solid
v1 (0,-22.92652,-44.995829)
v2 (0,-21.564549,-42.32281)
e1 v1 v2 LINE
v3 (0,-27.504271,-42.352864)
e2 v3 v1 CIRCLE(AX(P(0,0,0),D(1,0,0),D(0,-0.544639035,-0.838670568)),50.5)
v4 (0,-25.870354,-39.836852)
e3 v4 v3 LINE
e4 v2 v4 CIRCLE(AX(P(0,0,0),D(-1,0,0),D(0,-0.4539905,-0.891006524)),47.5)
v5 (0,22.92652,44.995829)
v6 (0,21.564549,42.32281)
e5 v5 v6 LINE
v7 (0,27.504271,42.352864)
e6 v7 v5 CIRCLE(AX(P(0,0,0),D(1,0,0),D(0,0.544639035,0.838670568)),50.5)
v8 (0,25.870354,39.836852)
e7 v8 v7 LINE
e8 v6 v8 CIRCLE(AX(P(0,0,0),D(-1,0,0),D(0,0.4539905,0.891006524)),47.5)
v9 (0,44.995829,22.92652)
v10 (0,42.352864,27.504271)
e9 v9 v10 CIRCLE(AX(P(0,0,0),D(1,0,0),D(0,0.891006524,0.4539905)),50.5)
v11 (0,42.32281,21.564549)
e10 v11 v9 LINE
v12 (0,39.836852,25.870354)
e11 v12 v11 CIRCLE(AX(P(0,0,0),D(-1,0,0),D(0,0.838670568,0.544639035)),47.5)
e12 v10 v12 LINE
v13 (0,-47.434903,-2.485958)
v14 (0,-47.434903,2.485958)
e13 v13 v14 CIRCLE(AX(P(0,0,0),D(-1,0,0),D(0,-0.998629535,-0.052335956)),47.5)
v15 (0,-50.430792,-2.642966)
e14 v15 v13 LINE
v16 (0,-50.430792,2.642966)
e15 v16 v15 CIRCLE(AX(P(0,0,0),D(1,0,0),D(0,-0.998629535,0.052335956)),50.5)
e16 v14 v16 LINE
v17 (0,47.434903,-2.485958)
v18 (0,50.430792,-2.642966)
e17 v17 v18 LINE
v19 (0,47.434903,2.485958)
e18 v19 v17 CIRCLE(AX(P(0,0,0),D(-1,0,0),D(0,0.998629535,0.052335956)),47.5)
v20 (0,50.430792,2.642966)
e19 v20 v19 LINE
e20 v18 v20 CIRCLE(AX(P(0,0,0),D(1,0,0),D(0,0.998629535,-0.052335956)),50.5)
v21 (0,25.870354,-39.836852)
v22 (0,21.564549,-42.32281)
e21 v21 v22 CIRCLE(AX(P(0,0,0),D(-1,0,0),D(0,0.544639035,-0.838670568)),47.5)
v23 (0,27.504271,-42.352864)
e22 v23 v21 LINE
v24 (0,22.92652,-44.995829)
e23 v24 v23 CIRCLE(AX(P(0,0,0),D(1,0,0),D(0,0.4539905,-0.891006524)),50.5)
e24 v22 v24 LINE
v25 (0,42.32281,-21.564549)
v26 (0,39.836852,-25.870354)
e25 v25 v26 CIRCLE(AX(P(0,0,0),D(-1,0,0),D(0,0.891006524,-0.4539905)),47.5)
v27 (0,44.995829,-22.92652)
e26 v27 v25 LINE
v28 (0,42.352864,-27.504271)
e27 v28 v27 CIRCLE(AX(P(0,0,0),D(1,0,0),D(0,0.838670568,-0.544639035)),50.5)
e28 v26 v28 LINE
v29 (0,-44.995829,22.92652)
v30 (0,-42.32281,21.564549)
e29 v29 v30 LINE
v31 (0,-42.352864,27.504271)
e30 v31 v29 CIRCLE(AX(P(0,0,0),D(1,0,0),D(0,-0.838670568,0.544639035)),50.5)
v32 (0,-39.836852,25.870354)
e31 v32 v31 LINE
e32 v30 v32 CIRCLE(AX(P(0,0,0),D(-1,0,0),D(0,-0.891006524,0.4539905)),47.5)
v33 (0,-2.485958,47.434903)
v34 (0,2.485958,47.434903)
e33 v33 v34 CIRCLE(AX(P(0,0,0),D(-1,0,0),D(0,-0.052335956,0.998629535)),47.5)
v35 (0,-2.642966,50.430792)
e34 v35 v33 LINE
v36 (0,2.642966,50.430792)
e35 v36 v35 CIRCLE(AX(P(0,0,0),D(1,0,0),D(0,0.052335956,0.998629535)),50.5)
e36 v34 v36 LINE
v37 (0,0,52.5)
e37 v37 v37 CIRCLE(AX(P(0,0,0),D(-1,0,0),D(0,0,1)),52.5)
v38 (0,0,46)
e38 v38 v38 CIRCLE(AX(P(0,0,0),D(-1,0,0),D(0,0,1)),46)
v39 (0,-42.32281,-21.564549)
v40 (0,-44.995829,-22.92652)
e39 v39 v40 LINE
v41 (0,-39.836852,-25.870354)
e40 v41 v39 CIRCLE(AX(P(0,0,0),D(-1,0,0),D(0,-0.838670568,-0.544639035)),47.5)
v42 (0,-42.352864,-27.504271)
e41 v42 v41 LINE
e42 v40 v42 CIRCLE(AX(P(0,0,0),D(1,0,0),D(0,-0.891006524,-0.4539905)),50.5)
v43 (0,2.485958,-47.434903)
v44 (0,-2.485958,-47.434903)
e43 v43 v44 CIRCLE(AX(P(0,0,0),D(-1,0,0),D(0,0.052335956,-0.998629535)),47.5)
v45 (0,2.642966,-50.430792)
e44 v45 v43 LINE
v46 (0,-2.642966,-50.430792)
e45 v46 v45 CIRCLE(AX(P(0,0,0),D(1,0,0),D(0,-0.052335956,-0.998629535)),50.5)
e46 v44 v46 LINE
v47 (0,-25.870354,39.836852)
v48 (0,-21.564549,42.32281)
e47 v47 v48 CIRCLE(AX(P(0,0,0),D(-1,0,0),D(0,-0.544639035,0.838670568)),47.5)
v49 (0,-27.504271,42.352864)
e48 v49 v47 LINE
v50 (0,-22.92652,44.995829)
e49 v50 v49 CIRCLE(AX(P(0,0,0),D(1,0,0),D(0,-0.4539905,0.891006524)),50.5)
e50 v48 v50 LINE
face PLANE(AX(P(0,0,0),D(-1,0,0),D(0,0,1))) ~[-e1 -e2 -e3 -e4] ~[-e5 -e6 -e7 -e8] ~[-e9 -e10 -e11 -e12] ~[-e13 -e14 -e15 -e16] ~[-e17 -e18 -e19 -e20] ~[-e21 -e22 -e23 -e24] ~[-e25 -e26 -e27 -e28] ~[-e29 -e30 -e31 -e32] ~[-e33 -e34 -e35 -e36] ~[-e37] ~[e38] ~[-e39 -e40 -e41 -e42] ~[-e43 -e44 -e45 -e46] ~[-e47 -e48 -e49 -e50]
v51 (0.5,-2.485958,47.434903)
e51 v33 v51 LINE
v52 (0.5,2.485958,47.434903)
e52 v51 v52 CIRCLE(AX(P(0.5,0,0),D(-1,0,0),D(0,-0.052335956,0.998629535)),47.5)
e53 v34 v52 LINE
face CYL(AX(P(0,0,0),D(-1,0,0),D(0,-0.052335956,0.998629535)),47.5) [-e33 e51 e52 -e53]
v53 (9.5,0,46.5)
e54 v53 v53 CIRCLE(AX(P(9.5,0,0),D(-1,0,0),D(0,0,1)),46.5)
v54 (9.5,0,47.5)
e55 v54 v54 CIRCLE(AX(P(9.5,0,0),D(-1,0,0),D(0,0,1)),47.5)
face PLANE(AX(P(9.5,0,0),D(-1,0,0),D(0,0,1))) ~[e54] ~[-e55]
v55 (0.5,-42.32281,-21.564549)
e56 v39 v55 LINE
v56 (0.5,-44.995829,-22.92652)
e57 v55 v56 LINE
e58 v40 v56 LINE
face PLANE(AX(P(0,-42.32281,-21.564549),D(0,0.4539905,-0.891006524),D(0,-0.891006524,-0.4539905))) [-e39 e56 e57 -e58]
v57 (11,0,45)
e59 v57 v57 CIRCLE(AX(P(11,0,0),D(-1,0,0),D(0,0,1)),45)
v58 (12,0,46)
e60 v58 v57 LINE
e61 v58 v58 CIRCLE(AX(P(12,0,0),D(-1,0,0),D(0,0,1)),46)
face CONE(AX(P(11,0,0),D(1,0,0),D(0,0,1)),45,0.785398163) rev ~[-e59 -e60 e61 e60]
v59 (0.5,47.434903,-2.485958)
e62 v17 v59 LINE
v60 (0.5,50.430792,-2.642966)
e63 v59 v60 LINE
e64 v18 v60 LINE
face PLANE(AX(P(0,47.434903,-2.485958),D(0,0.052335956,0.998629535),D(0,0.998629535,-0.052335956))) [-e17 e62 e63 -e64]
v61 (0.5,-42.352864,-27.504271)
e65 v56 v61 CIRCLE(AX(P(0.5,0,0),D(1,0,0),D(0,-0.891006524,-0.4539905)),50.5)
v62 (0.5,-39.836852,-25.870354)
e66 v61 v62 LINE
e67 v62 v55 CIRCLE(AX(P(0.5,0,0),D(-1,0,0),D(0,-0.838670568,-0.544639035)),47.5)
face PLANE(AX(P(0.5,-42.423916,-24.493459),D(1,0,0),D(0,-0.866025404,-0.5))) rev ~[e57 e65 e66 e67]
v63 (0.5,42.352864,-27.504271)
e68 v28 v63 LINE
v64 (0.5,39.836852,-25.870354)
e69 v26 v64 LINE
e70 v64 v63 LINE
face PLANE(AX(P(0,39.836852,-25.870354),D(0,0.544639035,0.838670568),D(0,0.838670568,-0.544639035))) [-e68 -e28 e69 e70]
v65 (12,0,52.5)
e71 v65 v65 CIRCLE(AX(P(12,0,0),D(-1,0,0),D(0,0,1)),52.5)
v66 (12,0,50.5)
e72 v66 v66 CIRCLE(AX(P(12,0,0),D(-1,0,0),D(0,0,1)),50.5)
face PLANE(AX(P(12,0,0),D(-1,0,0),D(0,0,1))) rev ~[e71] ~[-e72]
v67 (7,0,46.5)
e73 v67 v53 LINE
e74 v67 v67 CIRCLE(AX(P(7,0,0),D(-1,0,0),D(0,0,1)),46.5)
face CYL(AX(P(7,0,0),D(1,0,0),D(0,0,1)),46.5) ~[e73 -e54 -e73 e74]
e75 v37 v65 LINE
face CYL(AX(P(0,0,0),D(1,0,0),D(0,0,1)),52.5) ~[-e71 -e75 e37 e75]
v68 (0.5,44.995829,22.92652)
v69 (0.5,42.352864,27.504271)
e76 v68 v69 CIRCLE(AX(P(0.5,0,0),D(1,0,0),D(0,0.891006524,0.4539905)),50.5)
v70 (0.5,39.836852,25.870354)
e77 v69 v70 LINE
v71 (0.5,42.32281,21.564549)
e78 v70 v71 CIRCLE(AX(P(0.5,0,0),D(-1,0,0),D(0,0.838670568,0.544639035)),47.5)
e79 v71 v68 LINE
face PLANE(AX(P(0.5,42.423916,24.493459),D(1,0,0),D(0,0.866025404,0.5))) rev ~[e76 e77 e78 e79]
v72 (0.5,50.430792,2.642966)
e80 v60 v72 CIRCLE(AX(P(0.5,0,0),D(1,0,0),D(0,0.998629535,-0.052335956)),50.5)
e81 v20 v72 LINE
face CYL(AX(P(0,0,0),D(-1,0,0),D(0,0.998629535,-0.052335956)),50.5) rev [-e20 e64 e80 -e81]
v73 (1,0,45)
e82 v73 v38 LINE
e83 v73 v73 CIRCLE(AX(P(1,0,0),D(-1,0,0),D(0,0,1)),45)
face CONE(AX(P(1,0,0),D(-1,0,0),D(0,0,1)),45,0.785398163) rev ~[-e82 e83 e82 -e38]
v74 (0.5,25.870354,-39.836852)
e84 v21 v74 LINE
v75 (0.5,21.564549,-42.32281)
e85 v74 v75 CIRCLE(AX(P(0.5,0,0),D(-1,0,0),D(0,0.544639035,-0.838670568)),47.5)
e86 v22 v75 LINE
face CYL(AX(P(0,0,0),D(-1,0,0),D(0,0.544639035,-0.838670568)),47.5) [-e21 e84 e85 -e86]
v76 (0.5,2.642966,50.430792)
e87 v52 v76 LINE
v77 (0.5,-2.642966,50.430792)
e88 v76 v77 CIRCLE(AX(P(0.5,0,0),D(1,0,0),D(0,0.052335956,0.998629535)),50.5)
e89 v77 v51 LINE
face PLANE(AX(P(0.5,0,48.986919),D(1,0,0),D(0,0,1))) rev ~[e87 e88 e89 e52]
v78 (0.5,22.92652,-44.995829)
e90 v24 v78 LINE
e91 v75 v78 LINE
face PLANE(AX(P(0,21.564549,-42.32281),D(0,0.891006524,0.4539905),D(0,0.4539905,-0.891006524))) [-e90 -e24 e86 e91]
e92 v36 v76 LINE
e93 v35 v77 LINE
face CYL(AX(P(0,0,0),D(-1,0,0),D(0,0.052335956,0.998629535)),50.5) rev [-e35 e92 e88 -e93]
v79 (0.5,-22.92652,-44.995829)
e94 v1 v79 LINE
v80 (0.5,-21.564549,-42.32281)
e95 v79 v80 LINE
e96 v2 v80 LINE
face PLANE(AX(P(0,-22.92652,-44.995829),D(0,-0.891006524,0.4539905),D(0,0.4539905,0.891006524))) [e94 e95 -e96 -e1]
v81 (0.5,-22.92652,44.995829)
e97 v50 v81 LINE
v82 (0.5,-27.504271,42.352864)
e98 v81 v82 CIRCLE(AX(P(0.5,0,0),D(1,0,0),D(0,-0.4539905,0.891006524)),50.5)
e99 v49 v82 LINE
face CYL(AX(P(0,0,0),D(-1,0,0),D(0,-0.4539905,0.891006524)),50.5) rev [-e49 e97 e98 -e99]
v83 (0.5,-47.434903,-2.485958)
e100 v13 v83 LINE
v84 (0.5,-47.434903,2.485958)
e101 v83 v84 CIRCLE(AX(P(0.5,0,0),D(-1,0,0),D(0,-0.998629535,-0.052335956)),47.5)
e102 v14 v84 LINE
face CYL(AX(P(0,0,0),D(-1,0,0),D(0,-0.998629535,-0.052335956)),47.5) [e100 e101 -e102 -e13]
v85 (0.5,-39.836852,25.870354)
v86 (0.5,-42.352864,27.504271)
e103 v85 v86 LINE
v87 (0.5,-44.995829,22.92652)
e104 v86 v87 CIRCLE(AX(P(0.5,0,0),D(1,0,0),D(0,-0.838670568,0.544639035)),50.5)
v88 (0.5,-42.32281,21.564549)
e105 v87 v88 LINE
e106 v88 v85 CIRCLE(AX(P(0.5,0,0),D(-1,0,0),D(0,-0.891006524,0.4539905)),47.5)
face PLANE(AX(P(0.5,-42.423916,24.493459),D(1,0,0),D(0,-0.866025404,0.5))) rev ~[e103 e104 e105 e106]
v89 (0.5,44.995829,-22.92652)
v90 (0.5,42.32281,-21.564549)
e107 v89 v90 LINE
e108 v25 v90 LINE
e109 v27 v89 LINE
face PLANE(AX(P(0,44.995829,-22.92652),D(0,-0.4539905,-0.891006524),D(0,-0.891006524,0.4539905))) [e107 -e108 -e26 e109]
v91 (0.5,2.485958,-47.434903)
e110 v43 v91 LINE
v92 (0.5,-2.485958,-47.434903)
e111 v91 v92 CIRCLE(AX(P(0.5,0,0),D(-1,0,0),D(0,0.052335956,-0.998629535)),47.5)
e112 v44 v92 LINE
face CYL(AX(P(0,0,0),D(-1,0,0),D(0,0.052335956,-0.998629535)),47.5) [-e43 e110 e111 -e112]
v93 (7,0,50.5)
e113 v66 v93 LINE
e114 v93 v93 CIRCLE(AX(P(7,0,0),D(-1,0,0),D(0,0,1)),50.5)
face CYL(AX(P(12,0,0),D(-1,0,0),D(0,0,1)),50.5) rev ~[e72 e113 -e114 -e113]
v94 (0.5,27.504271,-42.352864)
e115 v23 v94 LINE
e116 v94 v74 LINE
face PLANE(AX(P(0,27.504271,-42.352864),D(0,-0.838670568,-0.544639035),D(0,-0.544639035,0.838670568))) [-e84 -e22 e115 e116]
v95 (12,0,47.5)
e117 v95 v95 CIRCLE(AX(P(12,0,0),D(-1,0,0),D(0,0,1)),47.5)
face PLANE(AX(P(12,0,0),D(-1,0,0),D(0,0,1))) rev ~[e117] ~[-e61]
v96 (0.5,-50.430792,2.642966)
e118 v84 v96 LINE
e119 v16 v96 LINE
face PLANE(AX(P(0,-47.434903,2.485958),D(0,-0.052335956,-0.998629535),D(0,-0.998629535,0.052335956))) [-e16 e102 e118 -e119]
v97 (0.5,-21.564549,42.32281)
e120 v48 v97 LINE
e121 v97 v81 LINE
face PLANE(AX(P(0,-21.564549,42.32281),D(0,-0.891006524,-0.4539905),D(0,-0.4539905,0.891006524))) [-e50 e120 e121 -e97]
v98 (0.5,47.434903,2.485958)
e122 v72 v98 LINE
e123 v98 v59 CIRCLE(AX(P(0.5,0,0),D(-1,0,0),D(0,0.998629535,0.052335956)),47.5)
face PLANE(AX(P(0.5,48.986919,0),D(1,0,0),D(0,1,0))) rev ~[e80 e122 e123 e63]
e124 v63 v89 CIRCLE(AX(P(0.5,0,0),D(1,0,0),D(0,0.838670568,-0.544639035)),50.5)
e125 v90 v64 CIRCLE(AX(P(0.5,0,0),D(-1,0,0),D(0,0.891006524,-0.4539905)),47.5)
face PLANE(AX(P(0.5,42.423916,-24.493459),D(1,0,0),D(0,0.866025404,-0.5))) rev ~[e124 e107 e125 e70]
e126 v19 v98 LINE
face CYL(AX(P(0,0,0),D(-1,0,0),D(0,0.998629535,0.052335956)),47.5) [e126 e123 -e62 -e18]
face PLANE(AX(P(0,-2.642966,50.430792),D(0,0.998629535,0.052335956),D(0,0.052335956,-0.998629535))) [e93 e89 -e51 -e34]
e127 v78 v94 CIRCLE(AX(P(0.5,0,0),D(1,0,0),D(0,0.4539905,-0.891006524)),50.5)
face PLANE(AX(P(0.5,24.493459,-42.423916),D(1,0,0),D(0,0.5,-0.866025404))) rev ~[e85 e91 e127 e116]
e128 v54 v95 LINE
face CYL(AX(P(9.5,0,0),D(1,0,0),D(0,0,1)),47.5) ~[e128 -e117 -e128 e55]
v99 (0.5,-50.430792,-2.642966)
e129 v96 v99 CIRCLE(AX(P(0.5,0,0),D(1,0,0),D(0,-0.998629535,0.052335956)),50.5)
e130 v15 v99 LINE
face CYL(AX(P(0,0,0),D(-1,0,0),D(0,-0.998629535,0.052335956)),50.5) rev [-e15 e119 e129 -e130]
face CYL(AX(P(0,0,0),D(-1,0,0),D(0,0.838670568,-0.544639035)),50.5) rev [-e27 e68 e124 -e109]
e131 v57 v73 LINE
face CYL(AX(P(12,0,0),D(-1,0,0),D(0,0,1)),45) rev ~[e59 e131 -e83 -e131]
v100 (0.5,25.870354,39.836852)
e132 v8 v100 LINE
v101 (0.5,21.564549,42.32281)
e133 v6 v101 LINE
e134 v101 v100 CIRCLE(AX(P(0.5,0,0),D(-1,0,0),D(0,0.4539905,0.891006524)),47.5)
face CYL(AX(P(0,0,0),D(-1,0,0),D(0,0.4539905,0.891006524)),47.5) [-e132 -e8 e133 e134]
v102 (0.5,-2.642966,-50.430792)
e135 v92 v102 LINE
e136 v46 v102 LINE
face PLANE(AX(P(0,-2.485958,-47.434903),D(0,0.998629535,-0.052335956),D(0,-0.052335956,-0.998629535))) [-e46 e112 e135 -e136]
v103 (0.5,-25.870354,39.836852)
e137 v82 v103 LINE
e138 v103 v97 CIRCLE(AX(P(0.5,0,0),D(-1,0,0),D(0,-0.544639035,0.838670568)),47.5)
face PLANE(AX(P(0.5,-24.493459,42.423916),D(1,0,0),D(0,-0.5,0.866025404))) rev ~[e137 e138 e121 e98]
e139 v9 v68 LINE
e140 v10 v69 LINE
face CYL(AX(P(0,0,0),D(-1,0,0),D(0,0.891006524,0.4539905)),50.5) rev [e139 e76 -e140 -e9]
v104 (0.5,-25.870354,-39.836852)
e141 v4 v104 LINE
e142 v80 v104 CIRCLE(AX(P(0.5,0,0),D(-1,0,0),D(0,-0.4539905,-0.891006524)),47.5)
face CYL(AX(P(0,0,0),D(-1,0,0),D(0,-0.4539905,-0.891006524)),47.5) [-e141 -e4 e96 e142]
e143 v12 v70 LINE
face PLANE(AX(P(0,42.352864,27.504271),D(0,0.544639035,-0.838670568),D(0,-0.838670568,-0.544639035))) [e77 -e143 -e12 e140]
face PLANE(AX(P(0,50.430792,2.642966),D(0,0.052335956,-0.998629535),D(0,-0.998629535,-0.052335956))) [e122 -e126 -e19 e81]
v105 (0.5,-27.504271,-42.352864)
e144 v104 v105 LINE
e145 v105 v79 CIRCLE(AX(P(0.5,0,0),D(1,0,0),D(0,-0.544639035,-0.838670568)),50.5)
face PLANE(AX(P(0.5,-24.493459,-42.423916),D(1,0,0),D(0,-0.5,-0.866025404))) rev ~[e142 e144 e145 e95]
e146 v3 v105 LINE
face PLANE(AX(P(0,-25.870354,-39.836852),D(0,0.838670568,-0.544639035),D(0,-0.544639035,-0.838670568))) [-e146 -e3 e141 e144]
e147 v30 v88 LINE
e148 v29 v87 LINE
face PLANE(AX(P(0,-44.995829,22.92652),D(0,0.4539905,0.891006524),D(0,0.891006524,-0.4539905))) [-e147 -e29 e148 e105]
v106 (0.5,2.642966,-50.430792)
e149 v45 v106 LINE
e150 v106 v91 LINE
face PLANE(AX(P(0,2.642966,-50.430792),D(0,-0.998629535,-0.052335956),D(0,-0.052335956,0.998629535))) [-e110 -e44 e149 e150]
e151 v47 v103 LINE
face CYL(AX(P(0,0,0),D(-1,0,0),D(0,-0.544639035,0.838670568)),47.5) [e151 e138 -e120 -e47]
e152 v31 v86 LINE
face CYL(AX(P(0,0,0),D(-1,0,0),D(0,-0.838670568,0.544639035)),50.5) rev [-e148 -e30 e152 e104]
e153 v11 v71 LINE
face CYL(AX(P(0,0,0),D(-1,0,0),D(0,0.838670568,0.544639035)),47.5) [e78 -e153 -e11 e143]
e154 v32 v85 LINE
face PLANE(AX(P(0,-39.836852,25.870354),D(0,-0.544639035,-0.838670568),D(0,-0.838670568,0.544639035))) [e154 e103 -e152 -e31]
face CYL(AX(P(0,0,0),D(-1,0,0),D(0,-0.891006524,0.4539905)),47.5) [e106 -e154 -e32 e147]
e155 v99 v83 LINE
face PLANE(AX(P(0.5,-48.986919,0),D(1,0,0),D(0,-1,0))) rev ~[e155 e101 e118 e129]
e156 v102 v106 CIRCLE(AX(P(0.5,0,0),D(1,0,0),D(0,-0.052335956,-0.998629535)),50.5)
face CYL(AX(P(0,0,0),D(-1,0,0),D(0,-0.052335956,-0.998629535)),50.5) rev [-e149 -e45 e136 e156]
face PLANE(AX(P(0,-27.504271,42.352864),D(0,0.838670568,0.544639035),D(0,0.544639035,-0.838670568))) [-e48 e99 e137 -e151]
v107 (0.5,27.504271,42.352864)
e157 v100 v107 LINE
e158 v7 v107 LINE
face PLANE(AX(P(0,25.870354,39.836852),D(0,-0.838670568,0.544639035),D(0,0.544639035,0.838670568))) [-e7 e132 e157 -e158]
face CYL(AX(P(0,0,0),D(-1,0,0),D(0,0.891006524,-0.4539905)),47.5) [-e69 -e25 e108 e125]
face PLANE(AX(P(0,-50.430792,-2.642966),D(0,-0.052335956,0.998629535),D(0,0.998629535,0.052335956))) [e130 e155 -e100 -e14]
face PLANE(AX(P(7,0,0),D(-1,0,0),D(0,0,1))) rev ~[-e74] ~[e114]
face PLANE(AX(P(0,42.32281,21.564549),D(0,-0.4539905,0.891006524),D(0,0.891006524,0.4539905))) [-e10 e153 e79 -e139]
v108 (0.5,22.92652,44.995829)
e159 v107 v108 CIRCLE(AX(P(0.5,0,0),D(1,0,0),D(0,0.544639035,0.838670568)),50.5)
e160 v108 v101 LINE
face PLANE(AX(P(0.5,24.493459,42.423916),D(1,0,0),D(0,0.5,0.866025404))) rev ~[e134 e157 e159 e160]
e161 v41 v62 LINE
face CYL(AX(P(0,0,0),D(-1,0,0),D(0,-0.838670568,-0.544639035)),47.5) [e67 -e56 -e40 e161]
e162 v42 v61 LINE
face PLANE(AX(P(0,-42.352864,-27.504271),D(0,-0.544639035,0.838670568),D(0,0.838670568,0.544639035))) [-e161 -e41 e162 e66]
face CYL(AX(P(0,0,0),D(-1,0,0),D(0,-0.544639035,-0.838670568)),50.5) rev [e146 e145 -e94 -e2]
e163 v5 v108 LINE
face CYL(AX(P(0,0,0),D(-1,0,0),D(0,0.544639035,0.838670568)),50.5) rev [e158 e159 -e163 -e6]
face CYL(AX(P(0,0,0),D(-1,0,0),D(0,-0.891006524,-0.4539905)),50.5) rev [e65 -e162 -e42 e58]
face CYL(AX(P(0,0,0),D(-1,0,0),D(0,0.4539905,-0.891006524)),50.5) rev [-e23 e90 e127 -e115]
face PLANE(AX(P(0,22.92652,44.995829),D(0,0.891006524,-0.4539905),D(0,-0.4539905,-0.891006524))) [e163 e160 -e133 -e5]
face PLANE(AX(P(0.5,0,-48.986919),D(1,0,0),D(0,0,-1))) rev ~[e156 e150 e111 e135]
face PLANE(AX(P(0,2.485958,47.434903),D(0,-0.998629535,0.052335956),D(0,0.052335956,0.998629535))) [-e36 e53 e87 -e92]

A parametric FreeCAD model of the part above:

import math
import FreeCAD as App
import Part
import Sketcher
Q = App.Units.Quantity


def edges_at(feature, points):
    """Names of the edges that pass closest to the given points."""
    edges = feature.Shape.Edges
    near = lambda p: min(range(len(edges)), key=lambda i: edges[i].distToShape(Part.Vertex(*p))[0])
    return sorted({f"Edge{near(p) + 1}" for p in points})


def add_polygon(sketch, points):
    """Adds a closed chain of lines whose ends are joined by coincident constraints."""
    first, n = sketch.GeometryCount, len(points)
    for a, b in zip(points, points[1:] + points[:1]):
        sketch.addGeometry(Part.LineSegment(App.Vector(*a, 0), App.Vector(*b, 0)), False)
    for i in range(n):
        sketch.addConstraint(Sketcher.Constraint("Coincident", first + i, 2, first + (i + 1) % n, 1))

doc = App.newDocument("Part")
params = doc.addObject("Spreadsheet::Sheet", "Params")
for row, (alias, value) in enumerate([
    ("sketch1_width", "12 mm"),
    ("sketch1_width2", "5 mm"),
    ("sketch1_height", "1 mm"),
    ("sketch1_height2", "2 mm"),
    ("sketch1_height3", "4 mm"),
    ("revolution_angle", "360 deg"),
    ("sketch2_radius", "47.5 mm"),
    ("sketch2_radius2", "50.5 mm"),
    ("pocket1_length", "0.5 mm"),
    ("chamfer_size", "1 mm"),
], start=1):
    params.set(f"A{row}", alias)
    params.set(f"B{row}", "=" + value)
    params.setAlias(f"B{row}", alias)

body = doc.addObject("PartDesign::Body", "Body")

# Sketch on XY plane
sketch1 = doc.addObject("Sketcher::SketchObject", "Sketch")
body.addObject(sketch1)
sketch1.AttachmentSupport = (doc.XY_Plane, [""])
sketch1.MapMode = "FlatFace"
add_polygon(sketch1, [(7, 46.5), (9.5, 46.5), (9.5, 47.5), (12, 47.5), (12, 45), (0, 45), (0, 52.5), (12, 52.5), (12, 50.5), (7, 50.5)])  # lines 0-9
sketch1.addConstraint([
    Sketcher.Constraint("Horizontal", 0),
    Sketcher.Constraint("Vertical", 1),
    Sketcher.Constraint("Horizontal", 2),
    Sketcher.Constraint("Vertical", 3),
    Sketcher.Constraint("Horizontal", 4),
    Sketcher.Constraint("Vertical", 5),
    Sketcher.Constraint("Horizontal", 6),
    Sketcher.Constraint("Vertical", 7),
    Sketcher.Constraint("Horizontal", 8),
    Sketcher.Constraint("Vertical", 9),
    Sketcher.Constraint("PointOnObject", 4, 2, -2),
    Sketcher.Constraint("Vertical", 3, 2, 6, 2),
    Sketcher.Constraint("Equal", 0, 2),
    Sketcher.Constraint("Equal", 2, 3),
    Sketcher.Constraint("DistanceX", 4, 2, 4, 1, 12.0),
    Sketcher.Constraint("DistanceX", 8, 2, 8, 1, 5.0),
    Sketcher.Constraint("DistanceY", 1, 1, 1, 2, 1.0),
    Sketcher.Constraint("DistanceY", 7, 2, 7, 1, 2.0),
    Sketcher.Constraint("DistanceY", 9, 2, 9, 1, 4.0),
    Sketcher.Constraint("DistanceY", -1, 1, 3, 2, 45.0),
])
sketch1.setExpression("Constraints[24]", "Params.sketch1_width")
sketch1.setExpression("Constraints[25]", "Params.sketch1_width2")
sketch1.setExpression("Constraints[26]", "Params.sketch1_height")
sketch1.setExpression("Constraints[27]", "Params.sketch1_height2")
sketch1.setExpression("Constraints[28]", "Params.sketch1_height3")
revolution = doc.addObject("PartDesign::Revolution", "Revolution")
body.addObject(revolution)
revolution.Profile = sketch1
revolution.ReferenceAxis = (sketch1, ["H_Axis"])
revolution.setExpression("Angle", "Params.revolution_angle")

# Sketch on YZ plane
sketch2 = doc.addObject("Sketcher::SketchObject", "Sketch001")
body.addObject(sketch2)
sketch2.AttachmentSupport = (doc.YZ_Plane, [""])
sketch2.MapMode = "FlatFace"
sketch2.addGeometry([
    Part.LineSegment(App.Vector(-2.6, -50.4, 0), App.Vector(-2.5, -47.4, 0)),
    Part.ArcOfCircle(Part.Circle(App.Vector(0, 0, 0), App.Vector(0, 0, 1), 47.5), math.radians(-93), math.radians(-87)),
    Part.LineSegment(App.Vector(2.5, -47.4, 0), App.Vector(2.6, -50.4, 0)),
    Part.ArcOfCircle(Part.Circle(App.Vector(0, 0, 0), App.Vector(0, 0, 1), 50.5), math.radians(-93), math.radians(-87)),
], False)
sketch2.addConstraint([
    Sketcher.Constraint("Coincident", 0, 2, 1, 1),
    Sketcher.Constraint("Coincident", 1, 2, 2, 1),
    Sketcher.Constraint("Coincident", 2, 2, 3, 2),
    Sketcher.Constraint("Coincident", 3, 1, 0, 1),
    Sketcher.Constraint("Coincident", 1, 3, -1, 1),
    Sketcher.Constraint("Coincident", 3, 3, -1, 1),
    Sketcher.Constraint("Horizontal", 0, 2, 1, 2),
    Sketcher.Constraint("Horizontal", 2, 2, 3, 1),
    Sketcher.Constraint("Radius", 1, 47.5),
    Sketcher.Constraint("Radius", 3, 50.5),
    Sketcher.Constraint("Angle", 0, Q("87 deg")),
    Sketcher.Constraint("DistanceY", 2, 2, -1, 1, 50.430792),
])
sketch2.setExpression("Constraints[8]", "Params.sketch2_radius")
sketch2.setExpression("Constraints[9]", "Params.sketch2_radius2")
pocket1 = doc.addObject("PartDesign::Pocket", "Pocket")
body.addObject(pocket1)
pocket1.Profile = sketch2
pocket1.setExpression("Length", "Params.pocket1_length")
pocket1.Reversed = True
doc.recompute()

polarpattern = doc.addObject("PartDesign::PolarPattern", "PolarPattern")
body.addObject(polarpattern)
polarpattern.Originals = [pocket1]
polarpattern.Axis = (doc.X_Axis, [""])
polarpattern.Angle = 360
polarpattern.Occurrences = 12
body.Tip = polarpattern
doc.recompute()

chamfer = doc.addObject("PartDesign::Chamfer", "Chamfer")
body.addObject(chamfer)
chamfer.Base = (polarpattern, edges_at(polarpattern, [(0, 0, -45), (12, 0, -45)]))
chamfer.setExpression("Size", "Params.chamfer_size")

doc.recompute()
